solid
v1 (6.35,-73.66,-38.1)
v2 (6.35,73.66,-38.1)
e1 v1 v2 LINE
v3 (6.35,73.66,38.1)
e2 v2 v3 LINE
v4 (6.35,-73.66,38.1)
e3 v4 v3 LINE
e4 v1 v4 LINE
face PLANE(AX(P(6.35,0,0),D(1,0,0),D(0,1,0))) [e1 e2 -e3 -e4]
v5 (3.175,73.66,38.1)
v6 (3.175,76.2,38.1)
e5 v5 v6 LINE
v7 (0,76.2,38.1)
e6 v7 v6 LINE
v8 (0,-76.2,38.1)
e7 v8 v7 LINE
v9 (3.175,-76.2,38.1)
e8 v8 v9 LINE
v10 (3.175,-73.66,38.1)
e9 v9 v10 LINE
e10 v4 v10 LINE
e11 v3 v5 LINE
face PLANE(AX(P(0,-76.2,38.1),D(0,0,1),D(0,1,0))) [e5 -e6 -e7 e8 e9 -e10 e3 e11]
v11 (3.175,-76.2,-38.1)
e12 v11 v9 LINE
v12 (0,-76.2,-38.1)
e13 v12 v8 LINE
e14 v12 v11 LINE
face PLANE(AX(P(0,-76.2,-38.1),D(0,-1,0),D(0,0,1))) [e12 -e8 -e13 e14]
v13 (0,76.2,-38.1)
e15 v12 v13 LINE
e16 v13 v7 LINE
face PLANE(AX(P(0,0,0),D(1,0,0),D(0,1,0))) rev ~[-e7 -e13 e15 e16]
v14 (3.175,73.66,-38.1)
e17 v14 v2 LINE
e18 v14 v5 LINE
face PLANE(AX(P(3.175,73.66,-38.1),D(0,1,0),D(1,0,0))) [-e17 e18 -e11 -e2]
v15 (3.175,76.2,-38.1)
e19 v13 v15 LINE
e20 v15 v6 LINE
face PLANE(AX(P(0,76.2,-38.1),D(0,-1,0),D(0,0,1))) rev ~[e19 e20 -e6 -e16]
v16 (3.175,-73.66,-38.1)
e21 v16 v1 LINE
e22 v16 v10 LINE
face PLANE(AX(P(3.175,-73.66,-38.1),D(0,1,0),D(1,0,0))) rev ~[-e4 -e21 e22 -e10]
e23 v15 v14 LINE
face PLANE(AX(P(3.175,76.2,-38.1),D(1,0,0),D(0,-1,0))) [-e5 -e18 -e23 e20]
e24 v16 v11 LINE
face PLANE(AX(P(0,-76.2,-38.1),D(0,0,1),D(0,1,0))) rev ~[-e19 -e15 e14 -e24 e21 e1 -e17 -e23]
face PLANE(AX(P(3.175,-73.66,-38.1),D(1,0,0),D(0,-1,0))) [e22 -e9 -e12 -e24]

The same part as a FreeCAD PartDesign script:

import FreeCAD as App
import Part
import Sketcher
Q = App.Units.Quantity

doc = App.newDocument("Part")
params = doc.addObject("Spreadsheet::Sheet", "Params")
for row, (alias, value) in enumerate([
    ("sketch1_width", "6 in"),
    ("sketch1_height", "3 in"),
    ("pad1_length", "0.25 in"),
    ("sketch2_height", "0.1 in"),
    ("sketch2_width", "0.125 in"),
    ("pocket1_length", "6 in"),
    ("sketch3_height", "0.1 in"),
    ("sketch3_width", "0.125 in"),
    ("pocket2_length", "6 in"),
], start=1):
    params.set(f"A{row}", alias)
    params.set(f"B{row}", "=" + value)
    params.setAlias(f"B{row}", alias)

body = doc.addObject("PartDesign::Body", "Body")

# Sketch on YZ plane
sketch1 = body.newObject("Sketcher::SketchObject", "Sketch")
sketch1.AttachmentSupport = (doc.getObject("YZ_Plane"), [""])
sketch1.MapMode = "FlatFace"
sketch1.addGeometry(Part.LineSegment(App.Vector(-76, 38, 0), App.Vector(-76, -38, 0)), False)
sketch1.addGeometry(Part.LineSegment(App.Vector(-76, -38, 0), App.Vector(76, -38, 0)), False)
sketch1.addGeometry(Part.LineSegment(App.Vector(76, -38, 0), App.Vector(76, 38, 0)), False)
sketch1.addGeometry(Part.LineSegment(App.Vector(76, 38, 0), App.Vector(-76, 38, 0)), False)
sketch1.addConstraint(Sketcher.Constraint("Coincident", 0, 2, 1, 1))
sketch1.addConstraint(Sketcher.Constraint("Coincident", 1, 2, 2, 1))
sketch1.addConstraint(Sketcher.Constraint("Coincident", 2, 2, 3, 1))
sketch1.addConstraint(Sketcher.Constraint("Coincident", 3, 2, 0, 1))
sketch1.addConstraint(Sketcher.Constraint("Vertical", 0))
sketch1.addConstraint(Sketcher.Constraint("Horizontal", 1))
sketch1.addConstraint(Sketcher.Constraint("Vertical", 2))
sketch1.addConstraint(Sketcher.Constraint("Horizontal", 3))
sketch1.addConstraint(Sketcher.Constraint("Symmetric", 0, 2, 2, 2, -1, 1))
sketch1.addConstraint(Sketcher.Constraint("DistanceX", 1, 1, 1, 2, Q("6 in")))
sketch1.addConstraint(Sketcher.Constraint("DistanceY", 0, 2, 0, 1, Q("3 in")))
sketch1.setExpression("Constraints[9]", "Params.sketch1_width")
sketch1.setExpression("Constraints[10]", "Params.sketch1_height")
pad1 = body.newObject("PartDesign::Pad", "Pad")
pad1.Profile = sketch1
pad1.setExpression("Length", "Params.pad1_length")

# Sketch on XY plane
sketch2 = body.newObject("Sketcher::SketchObject", "Sketch001")
sketch2.AttachmentSupport = (doc.getObject("XY_Plane"), [""])
sketch2.MapMode = "FlatFace"
sketch2.AttachmentOffset = App.Placement(App.Vector(0, 0, -1.5 * 25.4), App.Rotation())
sketch2.addGeometry(Part.LineSegment(App.Vector(3.2, -76.2, 0), App.Vector(3.2, -73.7, 0)), False)
sketch2.addGeometry(Part.LineSegment(App.Vector(3.2, -73.7, 0), App.Vector(6.3, -73.7, 0)), False)
sketch2.addGeometry(Part.LineSegment(App.Vector(6.3, -73.7, 0), App.Vector(6.3, -76.2, 0)), False)
sketch2.addGeometry(Part.LineSegment(App.Vector(6.3, -76.2, 0), App.Vector(3.2, -76.2, 0)), False)
sketch2.addConstraint(Sketcher.Constraint("Coincident", 0, 2, 1, 1))
sketch2.addConstraint(Sketcher.Constraint("Coincident", 1, 2, 2, 1))
sketch2.addConstraint(Sketcher.Constraint("Coincident", 2, 2, 3, 1))
sketch2.addConstraint(Sketcher.Constraint("Coincident", 3, 2, 0, 1))
sketch2.addConstraint(Sketcher.Constraint("Vertical", 0))
sketch2.addConstraint(Sketcher.Constraint("Horizontal", 1))
sketch2.addConstraint(Sketcher.Constraint("Vertical", 2))
sketch2.addConstraint(Sketcher.Constraint("Horizontal", 3))
sketch2.addConstraint(Sketcher.Constraint("DistanceY", 0, 1, 0, 2, Q("0.1 in")))
sketch2.addConstraint(Sketcher.Constraint("DistanceY", 2, 2, -1, 1, Q("3 in")))
sketch2.addConstraint(Sketcher.Constraint("DistanceX", 1, 1, 1, 2, Q("0.125 in")))
sketch2.addConstraint(Sketcher.Constraint("DistanceX", -1, 1, 1, 2, Q("0.25 in")))
sketch2.setExpression("Constraints[8]", "Params.sketch2_height")
sketch2.setExpression("Constraints[10]", "Params.sketch2_width")
pocket1 = body.newObject("PartDesign::Pocket", "Pocket")
pocket1.Profile = sketch2
pocket1.setExpression("Length", "Params.pocket1_length")
pocket1.Reversed = True

# Sketch on XY plane
sketch3 = body.newObject("Sketcher::SketchObject", "Sketch002")
sketch3.AttachmentSupport = (doc.getObject("XY_Plane"), [""])
sketch3.MapMode = "FlatFace"
sketch3.AttachmentOffset = App.Placement(App.Vector(0, 0, -1.5 * 25.4), App.Rotation())
sketch3.addGeometry(Part.LineSegment(App.Vector(3.2, 73.7, 0), App.Vector(3.2, 76.2, 0)), False)
sketch3.addGeometry(Part.LineSegment(App.Vector(3.2, 76.2, 0), App.Vector(6.3, 76.2, 0)), False)
sketch3.addGeometry(Part.LineSegment(App.Vector(6.3, 76.2, 0), App.Vector(6.3, 73.7, 0)), False)
sketch3.addGeometry(Part.LineSegment(App.Vector(6.3, 73.7, 0), App.Vector(3.2, 73.7, 0)), False)
sketch3.addConstraint(Sketcher.Constraint("Coincident", 0, 2, 1, 1))
sketch3.addConstraint(Sketcher.Constraint("Coincident", 1, 2, 2, 1))
sketch3.addConstraint(Sketcher.Constraint("Coincident", 2, 2, 3, 1))
sketch3.addConstraint(Sketcher.Constraint("Coincident", 3, 2, 0, 1))
sketch3.addConstraint(Sketcher.Constraint("Vertical", 0))
sketch3.addConstraint(Sketcher.Constraint("Horizontal", 1))
sketch3.addConstraint(Sketcher.Constraint("Vertical", 2))
sketch3.addConstraint(Sketcher.Constraint("Horizontal", 3))
sketch3.addConstraint(Sketcher.Constraint("DistanceY", 0, 1, 0, 2, Q("0.1 in")))
sketch3.addConstraint(Sketcher.Constraint("DistanceY", -1, 1, 0, 2, Q("3 in")))
sketch3.addConstraint(Sketcher.Constraint("DistanceX", 1, 1, 1, 2, Q("0.125 in")))
sketch3.addConstraint(Sketcher.Constraint("DistanceX", -1, 1, 1, 2, Q("0.25 in")))
sketch3.setExpression("Constraints[8]", "Params.sketch3_height")
sketch3.setExpression("Constraints[10]", "Params.sketch3_width")
pocket2 = body.newObject("PartDesign::Pocket", "Pocket001")
pocket2.Profile = sketch3
pocket2.setExpression("Length", "Params.pocket2_length")
pocket2.Reversed = True

doc.recompute()
